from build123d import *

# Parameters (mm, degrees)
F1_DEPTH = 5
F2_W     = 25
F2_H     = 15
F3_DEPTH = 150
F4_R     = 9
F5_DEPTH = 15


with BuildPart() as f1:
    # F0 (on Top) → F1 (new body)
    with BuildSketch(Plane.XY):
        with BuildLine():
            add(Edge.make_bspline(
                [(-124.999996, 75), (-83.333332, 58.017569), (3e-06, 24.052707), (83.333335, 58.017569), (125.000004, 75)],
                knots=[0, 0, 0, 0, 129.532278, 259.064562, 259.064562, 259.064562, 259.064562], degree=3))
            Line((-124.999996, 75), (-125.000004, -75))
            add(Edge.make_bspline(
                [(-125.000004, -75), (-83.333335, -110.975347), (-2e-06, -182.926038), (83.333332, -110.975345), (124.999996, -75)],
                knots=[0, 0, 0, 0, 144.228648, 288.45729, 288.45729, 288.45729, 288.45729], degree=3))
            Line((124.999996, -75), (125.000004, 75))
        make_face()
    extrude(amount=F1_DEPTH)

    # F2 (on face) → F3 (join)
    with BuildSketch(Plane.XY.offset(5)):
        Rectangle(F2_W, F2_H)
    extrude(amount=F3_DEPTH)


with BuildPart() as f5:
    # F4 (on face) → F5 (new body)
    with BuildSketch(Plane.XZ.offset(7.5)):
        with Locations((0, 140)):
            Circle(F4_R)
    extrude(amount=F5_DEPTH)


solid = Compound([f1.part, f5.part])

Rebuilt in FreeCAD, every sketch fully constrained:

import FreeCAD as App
import Part
import Sketcher
Q = App.Units.Quantity


def add_polygon(sketch, points):
    """Adds a closed chain of lines whose ends are joined by coincident constraints."""
    first, n = sketch.GeometryCount, len(points)
    for a, b in zip(points, points[1:] + points[:1]):
        sketch.addGeometry(Part.LineSegment(App.Vector(*a, 0), App.Vector(*b, 0)), False)
    for i in range(n):
        sketch.addConstraint(Sketcher.Constraint("Coincident", first + i, 2, first + (i + 1) % n, 1))

doc = App.newDocument("Part")
body = doc.addObject("PartDesign::Body", "Body")

# Sketch on XY plane
sketch1 = body.newObject("Sketcher::SketchObject", "Sketch")
sketch1.AttachmentSupport = (doc.getObject("XY_Plane"), [""])
sketch1.MapMode = "FlatFace"
sketch1.addGeometry([
    Part.BSplineCurve([App.Vector(-124.999996, 75, 0), App.Vector(-83.333332, 58.017569, 0), App.Vector(0.000003, 24.052707, 0), App.Vector(83.333335, 58.017569, 0), App.Vector(125.000004, 75, 0)], [4, 1, 4], [0, 129.532278, 259.064562], False, 3, [1, 1, 1, 1, 1], False),
    Part.LineSegment(App.Vector(-124.999996, 75, 0), App.Vector(-125.000004, -75, 0)),
    Part.BSplineCurve([App.Vector(-125.000004, -75, 0), App.Vector(-83.333335, -110.975347, 0), App.Vector(-0.000002, -182.926038, 0), App.Vector(83.333332, -110.975345, 0), App.Vector(124.999996, -75, 0)], [4, 1, 4], [0, 144.228648, 288.45729], False, 3, [1, 1, 1, 1, 1], False),
    Part.LineSegment(App.Vector(124.999996, -75, 0), App.Vector(125.000004, 75, 0)),
], False)
sketch1.addConstraint([
    Sketcher.Constraint("Block", 0),
    Sketcher.Constraint("Block", 2),
    Sketcher.Constraint("Coincident", 0, 1, 1, 1),
    Sketcher.Constraint("Coincident", 1, 2, 2, 1),
    Sketcher.Constraint("Coincident", 2, 2, 3, 1),
    Sketcher.Constraint("Coincident", 3, 2, 0, 2),
])
pad1 = body.newObject("PartDesign::Pad", "Pad")
pad1.Profile = sketch1
pad1.Length = 5

# Sketch on XY plane
sketch2 = body.newObject("Sketcher::SketchObject", "Sketch001")
sketch2.AttachmentSupport = (doc.getObject("XY_Plane"), [""])
sketch2.MapMode = "FlatFace"
sketch2.AttachmentOffset = App.Placement(App.Vector(0, 0, 5), App.Rotation())
add_polygon(sketch2, [(-12, 8), (-12, -8), (12, -8), (12, 8)])  # lines 0-3
sketch2.addConstraint([
    Sketcher.Constraint("Vertical", 0),
    Sketcher.Constraint("Horizontal", 1),
    Sketcher.Constraint("Vertical", 2),
    Sketcher.Constraint("Horizontal", 3),
    Sketcher.Constraint("Symmetric", 0, 2, 2, 2, -1, 1),
    Sketcher.Constraint("DistanceX", 1, 1, 1, 2, Q("25 mm")),
    Sketcher.Constraint("DistanceY", 0, 2, 0, 1, Q("15 mm")),
])
pad2 = body.newObject("PartDesign::Pad", "Pad001")
pad2.Profile = sketch2
pad2.Length = 150
body2 = doc.addObject("PartDesign::Body", "Body001")

# Sketch on XZ plane
sketch3 = body2.newObject("Sketcher::SketchObject", "Sketch002")
sketch3.AttachmentSupport = (doc.getObject("XZ_Plane001"), [""])
sketch3.MapMode = "FlatFace"
sketch3.AttachmentOffset = App.Placement(App.Vector(0, 0, 7.5), App.Rotation())
sketch3.addGeometry(Part.Circle(App.Vector(0, 140, 0), App.Vector(0, 0, 1), 9), False)
sketch3.addConstraint([
    Sketcher.Constraint("PointOnObject", 0, 3, -2),
    Sketcher.Constraint("Diameter", 0, Q("18 mm")),
    Sketcher.Constraint("DistanceY", -1, 1, 0, 3, Q("140 mm")),
])
pad3 = body2.newObject("PartDesign::Pad", "Pad002")
pad3.Profile = sketch3
pad3.Length = 15

doc.recompute()
